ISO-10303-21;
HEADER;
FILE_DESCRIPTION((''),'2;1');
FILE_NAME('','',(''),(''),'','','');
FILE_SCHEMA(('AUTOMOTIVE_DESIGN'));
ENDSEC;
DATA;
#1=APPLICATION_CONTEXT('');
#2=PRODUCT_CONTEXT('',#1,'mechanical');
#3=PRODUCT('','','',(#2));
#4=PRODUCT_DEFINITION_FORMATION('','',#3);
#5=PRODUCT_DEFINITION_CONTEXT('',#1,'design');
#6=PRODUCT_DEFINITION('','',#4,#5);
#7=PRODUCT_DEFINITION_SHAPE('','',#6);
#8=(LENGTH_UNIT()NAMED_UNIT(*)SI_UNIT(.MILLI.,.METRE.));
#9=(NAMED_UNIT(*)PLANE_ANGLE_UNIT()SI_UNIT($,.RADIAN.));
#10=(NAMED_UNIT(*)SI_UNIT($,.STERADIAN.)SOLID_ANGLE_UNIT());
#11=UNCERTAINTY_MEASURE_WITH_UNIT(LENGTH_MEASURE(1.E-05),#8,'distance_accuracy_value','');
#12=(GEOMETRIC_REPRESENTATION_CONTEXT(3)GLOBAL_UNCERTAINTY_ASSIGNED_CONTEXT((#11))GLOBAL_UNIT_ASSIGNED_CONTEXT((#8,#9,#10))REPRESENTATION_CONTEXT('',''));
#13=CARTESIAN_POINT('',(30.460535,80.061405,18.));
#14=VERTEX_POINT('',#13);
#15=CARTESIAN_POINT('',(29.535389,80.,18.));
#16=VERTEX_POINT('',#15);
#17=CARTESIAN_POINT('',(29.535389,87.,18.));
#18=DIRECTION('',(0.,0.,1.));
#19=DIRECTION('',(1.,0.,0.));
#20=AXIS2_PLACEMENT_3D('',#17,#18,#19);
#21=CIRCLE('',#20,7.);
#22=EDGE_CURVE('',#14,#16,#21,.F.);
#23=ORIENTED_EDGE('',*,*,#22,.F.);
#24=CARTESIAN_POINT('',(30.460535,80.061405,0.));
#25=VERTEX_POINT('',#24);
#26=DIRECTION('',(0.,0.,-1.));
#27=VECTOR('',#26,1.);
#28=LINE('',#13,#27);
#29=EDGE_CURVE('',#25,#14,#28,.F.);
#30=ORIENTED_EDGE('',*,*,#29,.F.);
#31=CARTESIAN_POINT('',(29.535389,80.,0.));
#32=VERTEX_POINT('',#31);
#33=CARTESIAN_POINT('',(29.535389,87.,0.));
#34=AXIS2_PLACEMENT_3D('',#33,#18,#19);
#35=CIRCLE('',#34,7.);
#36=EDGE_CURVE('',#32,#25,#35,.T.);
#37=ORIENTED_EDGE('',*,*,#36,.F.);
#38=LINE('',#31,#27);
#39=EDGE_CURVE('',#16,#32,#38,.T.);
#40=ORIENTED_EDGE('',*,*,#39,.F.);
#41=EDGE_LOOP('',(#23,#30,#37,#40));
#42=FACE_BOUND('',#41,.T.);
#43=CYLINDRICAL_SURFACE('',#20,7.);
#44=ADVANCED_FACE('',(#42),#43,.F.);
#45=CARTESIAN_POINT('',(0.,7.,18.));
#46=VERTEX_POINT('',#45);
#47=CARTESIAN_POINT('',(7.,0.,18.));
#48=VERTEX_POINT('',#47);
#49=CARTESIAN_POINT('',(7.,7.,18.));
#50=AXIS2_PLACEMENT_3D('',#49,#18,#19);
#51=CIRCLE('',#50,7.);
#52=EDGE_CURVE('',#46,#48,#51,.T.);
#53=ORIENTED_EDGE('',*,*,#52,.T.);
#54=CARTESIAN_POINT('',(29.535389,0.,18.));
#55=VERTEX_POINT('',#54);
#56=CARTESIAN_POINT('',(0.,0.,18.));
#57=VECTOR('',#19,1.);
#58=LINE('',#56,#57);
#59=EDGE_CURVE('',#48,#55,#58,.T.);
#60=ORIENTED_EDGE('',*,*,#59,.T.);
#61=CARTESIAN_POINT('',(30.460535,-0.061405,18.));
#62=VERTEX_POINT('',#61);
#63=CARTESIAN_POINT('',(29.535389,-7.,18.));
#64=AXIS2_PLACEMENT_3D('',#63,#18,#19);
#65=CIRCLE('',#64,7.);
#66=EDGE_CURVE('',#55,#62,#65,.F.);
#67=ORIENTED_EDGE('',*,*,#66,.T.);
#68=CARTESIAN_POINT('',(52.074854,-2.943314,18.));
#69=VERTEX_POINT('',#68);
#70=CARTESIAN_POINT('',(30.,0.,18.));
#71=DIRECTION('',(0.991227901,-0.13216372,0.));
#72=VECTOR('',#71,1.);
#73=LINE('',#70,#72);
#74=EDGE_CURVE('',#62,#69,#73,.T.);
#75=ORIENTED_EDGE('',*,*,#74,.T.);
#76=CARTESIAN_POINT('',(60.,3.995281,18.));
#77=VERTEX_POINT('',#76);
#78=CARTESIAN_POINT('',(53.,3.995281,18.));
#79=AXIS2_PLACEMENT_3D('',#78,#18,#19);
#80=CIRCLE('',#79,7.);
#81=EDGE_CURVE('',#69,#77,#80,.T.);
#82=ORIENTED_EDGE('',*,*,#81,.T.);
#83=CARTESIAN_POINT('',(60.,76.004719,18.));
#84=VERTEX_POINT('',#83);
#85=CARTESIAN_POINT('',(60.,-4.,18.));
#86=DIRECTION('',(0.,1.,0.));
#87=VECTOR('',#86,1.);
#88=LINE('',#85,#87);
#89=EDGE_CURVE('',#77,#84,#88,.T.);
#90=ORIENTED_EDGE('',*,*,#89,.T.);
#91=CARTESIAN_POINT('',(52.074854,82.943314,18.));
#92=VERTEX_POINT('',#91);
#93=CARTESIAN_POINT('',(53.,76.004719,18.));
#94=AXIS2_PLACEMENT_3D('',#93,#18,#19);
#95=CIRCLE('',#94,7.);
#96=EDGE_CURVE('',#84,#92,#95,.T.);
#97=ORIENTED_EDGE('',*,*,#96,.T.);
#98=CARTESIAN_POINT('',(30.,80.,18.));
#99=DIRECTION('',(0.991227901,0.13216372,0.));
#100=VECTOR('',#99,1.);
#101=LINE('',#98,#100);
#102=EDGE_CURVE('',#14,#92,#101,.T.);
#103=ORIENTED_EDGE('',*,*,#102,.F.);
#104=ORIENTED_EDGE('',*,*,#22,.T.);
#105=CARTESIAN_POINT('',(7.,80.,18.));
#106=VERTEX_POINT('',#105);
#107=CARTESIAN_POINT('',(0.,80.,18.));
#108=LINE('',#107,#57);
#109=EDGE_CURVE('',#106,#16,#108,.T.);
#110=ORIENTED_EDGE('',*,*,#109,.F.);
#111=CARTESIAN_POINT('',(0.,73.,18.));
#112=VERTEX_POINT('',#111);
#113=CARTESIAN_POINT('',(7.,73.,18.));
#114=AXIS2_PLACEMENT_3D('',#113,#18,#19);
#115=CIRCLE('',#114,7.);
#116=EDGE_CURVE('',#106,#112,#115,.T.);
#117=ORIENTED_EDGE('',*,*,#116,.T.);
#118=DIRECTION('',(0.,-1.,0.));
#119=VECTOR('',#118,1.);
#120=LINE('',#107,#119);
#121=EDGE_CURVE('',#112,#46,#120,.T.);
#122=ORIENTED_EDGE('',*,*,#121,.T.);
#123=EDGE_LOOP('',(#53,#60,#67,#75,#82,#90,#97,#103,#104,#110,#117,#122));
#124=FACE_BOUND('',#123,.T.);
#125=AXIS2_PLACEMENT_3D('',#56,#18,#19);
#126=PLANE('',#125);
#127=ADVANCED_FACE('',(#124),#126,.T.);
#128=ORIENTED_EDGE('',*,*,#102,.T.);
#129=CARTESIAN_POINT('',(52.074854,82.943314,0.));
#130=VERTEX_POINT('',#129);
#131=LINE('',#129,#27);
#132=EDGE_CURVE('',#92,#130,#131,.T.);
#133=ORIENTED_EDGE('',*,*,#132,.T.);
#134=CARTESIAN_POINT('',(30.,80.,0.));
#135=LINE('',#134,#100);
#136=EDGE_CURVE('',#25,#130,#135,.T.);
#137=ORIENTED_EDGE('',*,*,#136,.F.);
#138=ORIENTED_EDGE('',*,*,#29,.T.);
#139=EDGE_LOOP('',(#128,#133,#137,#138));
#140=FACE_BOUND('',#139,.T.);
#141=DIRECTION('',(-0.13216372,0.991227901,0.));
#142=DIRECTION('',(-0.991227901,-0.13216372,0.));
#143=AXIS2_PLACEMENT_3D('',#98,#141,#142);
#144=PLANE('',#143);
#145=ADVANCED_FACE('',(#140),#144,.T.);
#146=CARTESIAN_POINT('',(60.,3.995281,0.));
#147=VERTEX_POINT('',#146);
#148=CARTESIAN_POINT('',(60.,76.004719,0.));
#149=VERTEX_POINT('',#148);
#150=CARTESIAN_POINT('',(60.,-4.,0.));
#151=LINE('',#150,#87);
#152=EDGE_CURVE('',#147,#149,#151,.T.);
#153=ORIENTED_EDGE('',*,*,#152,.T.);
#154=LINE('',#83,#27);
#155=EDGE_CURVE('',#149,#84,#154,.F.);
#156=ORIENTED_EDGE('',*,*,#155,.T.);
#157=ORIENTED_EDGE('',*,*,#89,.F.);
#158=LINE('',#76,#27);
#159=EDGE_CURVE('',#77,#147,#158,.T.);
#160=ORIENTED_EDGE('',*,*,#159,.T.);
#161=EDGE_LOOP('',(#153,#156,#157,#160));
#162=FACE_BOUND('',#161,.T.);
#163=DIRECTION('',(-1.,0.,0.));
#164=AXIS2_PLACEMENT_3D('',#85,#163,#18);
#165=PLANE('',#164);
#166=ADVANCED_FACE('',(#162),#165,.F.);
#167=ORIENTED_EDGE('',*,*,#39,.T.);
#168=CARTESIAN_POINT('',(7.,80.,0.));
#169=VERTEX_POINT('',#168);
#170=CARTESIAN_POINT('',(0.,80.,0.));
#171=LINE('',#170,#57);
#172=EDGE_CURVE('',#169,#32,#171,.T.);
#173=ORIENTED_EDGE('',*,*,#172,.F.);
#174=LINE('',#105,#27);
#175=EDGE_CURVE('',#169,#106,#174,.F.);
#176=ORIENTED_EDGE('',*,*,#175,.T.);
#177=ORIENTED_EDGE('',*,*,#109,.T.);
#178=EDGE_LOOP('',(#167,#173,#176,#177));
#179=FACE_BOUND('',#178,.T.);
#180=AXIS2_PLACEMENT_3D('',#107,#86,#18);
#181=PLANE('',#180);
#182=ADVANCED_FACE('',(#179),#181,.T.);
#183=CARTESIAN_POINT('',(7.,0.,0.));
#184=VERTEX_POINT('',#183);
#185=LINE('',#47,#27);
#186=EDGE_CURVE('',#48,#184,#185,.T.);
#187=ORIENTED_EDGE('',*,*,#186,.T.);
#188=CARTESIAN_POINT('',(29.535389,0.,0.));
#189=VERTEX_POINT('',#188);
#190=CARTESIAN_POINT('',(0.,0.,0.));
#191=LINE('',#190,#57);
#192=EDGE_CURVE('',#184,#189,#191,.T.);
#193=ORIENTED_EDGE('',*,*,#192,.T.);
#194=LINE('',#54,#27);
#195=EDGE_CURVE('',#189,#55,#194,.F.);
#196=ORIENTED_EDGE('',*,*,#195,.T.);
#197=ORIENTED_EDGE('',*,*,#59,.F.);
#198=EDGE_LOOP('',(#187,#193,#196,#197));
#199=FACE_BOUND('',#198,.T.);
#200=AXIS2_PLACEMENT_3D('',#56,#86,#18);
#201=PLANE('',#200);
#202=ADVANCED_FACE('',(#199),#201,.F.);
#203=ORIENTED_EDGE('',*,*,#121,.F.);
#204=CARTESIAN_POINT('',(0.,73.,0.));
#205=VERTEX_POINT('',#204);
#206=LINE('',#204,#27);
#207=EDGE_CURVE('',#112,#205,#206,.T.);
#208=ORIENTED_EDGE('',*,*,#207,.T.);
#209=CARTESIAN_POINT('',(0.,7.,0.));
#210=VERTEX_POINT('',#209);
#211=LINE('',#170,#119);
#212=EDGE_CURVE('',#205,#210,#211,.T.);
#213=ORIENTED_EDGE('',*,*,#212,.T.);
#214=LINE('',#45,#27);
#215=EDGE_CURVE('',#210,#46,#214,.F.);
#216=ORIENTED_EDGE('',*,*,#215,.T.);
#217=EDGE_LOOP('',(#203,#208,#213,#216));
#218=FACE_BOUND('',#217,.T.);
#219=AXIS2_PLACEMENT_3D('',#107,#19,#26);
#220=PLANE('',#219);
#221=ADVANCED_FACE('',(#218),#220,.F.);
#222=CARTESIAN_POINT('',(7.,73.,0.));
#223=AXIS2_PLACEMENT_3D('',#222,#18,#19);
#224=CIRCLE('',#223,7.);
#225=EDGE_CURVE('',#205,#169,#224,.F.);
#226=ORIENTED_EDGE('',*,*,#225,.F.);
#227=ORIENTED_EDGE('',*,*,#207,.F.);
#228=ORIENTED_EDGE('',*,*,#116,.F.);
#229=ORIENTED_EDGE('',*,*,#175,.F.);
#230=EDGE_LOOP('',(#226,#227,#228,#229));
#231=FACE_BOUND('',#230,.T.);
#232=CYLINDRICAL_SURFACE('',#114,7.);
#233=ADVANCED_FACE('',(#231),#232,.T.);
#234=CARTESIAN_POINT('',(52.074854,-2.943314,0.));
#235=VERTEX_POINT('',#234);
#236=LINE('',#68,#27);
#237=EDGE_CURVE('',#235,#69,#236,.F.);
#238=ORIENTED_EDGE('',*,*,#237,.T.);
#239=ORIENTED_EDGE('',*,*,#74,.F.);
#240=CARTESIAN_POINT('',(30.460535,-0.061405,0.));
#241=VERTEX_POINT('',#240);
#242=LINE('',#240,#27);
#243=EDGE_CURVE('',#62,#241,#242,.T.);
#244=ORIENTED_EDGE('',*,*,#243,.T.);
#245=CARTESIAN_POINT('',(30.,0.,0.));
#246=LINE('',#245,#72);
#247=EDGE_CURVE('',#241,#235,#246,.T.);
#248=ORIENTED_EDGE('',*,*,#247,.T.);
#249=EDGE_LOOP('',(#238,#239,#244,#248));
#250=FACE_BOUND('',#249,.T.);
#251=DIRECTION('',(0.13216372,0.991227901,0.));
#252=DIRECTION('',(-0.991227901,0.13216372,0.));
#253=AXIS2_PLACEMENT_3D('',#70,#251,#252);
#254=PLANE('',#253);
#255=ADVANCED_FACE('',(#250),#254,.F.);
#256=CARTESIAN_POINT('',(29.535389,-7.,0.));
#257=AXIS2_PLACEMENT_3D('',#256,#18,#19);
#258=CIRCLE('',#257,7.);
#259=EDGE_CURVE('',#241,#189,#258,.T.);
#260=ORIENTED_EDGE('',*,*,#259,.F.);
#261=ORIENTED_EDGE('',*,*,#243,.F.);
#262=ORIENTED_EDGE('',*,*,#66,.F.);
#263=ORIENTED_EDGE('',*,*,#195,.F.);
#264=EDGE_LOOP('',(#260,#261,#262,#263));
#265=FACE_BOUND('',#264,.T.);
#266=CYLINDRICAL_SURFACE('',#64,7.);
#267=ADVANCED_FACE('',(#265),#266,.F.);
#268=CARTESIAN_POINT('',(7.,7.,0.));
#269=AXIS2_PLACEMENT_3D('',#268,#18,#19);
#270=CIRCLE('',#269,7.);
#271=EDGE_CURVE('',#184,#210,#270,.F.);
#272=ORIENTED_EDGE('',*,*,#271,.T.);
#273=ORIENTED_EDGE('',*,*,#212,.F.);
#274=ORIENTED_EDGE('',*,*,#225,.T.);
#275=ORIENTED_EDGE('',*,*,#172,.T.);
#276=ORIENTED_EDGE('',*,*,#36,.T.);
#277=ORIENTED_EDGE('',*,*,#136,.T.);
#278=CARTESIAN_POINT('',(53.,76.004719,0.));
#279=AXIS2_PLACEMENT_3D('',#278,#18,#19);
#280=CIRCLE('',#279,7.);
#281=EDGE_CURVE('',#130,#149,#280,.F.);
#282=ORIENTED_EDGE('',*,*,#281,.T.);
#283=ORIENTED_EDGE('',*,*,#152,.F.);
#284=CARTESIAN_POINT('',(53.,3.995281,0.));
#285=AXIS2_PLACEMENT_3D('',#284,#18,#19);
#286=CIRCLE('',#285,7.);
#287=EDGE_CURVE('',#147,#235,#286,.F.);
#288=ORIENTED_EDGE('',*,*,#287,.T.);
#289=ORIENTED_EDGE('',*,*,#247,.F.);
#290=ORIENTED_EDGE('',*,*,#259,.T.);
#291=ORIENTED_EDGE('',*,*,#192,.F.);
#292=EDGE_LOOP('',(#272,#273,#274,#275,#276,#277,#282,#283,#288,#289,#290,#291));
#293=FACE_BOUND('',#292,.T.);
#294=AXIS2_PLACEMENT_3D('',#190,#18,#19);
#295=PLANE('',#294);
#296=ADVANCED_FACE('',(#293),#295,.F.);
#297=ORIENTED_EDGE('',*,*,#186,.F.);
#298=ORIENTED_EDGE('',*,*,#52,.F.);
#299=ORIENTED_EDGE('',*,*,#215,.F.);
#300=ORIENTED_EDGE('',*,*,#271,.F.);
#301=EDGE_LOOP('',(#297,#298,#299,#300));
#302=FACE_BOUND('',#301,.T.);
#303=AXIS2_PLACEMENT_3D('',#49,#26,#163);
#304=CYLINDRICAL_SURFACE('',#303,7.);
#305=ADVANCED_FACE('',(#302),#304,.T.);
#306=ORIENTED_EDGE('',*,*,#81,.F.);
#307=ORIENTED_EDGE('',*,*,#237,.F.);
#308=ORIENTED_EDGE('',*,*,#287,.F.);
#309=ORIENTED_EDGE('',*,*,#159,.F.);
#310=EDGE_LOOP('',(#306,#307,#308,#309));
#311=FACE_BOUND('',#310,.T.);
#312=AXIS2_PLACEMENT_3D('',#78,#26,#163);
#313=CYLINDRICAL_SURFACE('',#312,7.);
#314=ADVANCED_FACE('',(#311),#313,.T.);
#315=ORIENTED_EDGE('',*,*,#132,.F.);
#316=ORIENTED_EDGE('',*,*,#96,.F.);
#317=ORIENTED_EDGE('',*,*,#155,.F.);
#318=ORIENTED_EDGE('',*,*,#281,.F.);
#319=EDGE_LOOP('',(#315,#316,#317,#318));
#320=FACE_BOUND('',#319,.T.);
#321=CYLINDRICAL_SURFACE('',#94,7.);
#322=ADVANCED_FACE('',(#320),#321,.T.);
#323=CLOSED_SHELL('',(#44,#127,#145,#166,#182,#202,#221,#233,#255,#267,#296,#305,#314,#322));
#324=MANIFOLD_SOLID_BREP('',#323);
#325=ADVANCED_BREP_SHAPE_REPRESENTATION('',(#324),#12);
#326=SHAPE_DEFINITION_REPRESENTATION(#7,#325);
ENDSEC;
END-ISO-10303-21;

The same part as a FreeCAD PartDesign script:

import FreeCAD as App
import Part
import Sketcher

V = App.Vector
Q = App.Units.Quantity


def edges_at(feature, points):
    """Names of the edges that pass closest to the given points."""
    edges = feature.Shape.Edges
    near = lambda p: min(range(len(edges)), key=lambda i: edges[i].distToShape(Part.Vertex(*p))[0])
    return sorted({f"Edge{near(p) + 1}" for p in points})

doc = App.newDocument("Part")
body = doc.addObject("PartDesign::Body", "Body")

# Sketch on XY plane
sketch1 = body.newObject("Sketcher::SketchObject", "Sketch")
sketch1.AttachmentSupport = (doc.getObject("XY_Plane"), [""])
sketch1.MapMode = "FlatFace"
sketch1.addGeometry(Part.LineSegment(V(0, 80, 0), V(0, 0, 0)), False)
sketch1.addGeometry(Part.LineSegment(V(0, 0, 0), V(30, 0, 0)), False)
sketch1.addGeometry(Part.LineSegment(V(30, 0, 0), V(60, -4, 0)), False)
sketch1.addGeometry(Part.LineSegment(V(60, -4, 0), V(60, 84, 0)), False)
sketch1.addGeometry(Part.LineSegment(V(60, 84, 0), V(30, 80, 0)), False)
sketch1.addGeometry(Part.LineSegment(V(30, 80, 0), V(0, 80, 0)), False)
sketch1.addConstraint(Sketcher.Constraint("Coincident", 0, 2, 1, 1))
sketch1.addConstraint(Sketcher.Constraint("Coincident", 1, 2, 2, 1))
sketch1.addConstraint(Sketcher.Constraint("Coincident", 2, 2, 3, 1))
sketch1.addConstraint(Sketcher.Constraint("Coincident", 3, 2, 4, 1))
sketch1.addConstraint(Sketcher.Constraint("Coincident", 4, 2, 5, 1))
sketch1.addConstraint(Sketcher.Constraint("Coincident", 5, 2, 0, 1))
sketch1.addConstraint(Sketcher.Constraint("Vertical", 0))
sketch1.addConstraint(Sketcher.Constraint("Horizontal", 1))
sketch1.addConstraint(Sketcher.Constraint("Vertical", 3))
sketch1.addConstraint(Sketcher.Constraint("Horizontal", 5))
sketch1.addConstraint(Sketcher.Constraint("Coincident", 0, 2, -1, 1))
sketch1.addConstraint(Sketcher.Constraint("Vertical", 1, 2, 4, 2))
sketch1.addConstraint(Sketcher.Constraint("Equal", 2, 4))
sketch1.addConstraint(Sketcher.Constraint("DistanceX", 1, 1, 1, 2, Q("30 mm")))
sketch1.addConstraint(Sketcher.Constraint("DistanceY", 0, 2, 0, 1, Q("80 mm")))
sketch1.addConstraint(Sketcher.Constraint("DistanceY", 3, 1, 3, 2, Q("88 mm")))
sketch1.addConstraint(Sketcher.Constraint("DistanceX", -1, 1, 2, 2, Q("60 mm")))
pad1 = body.newObject("PartDesign::Pad", "Pad")
pad1.Profile = sketch1
pad1.Length = 18
doc.recompute()

fillet = body.newObject("PartDesign::Fillet", "Fillet")
fillet.Base = (pad1, edges_at(pad1, [
    (0, 80, 9),
    (30, 80, 9),
    (60, 84, 9),
    (60, -4, 9),
    (30, 0, 9),
    (0, 0, 9),
]))
fillet.Radius = 7

doc.recompute()
